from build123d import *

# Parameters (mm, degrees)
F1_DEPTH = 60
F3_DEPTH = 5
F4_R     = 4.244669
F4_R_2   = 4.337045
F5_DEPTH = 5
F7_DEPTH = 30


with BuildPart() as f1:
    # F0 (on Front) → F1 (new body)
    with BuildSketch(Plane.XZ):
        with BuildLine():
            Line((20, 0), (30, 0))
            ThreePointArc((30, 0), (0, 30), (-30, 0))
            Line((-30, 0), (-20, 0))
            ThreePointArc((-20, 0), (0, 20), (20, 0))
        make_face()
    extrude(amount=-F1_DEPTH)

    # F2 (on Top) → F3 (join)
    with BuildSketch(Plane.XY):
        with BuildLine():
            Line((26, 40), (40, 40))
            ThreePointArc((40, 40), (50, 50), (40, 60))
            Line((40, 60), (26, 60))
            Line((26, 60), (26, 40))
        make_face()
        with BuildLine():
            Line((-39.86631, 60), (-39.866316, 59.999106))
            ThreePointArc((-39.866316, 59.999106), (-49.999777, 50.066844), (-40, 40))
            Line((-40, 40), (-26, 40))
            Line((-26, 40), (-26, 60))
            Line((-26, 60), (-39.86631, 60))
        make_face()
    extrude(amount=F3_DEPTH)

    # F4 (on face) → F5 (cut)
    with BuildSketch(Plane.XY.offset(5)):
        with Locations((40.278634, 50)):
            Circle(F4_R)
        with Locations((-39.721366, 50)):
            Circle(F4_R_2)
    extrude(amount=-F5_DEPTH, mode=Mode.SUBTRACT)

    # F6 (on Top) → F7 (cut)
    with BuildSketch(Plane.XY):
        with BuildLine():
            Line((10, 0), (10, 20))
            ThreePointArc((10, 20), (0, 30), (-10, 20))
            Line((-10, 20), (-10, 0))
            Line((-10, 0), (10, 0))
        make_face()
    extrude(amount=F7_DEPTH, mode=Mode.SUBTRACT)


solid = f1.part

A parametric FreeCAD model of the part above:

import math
import FreeCAD as App
import Part
import Sketcher

V = App.Vector
Q = App.Units.Quantity

doc = App.newDocument("Part")
params = doc.addObject("Spreadsheet::Sheet", "Params")
for row, (alias, value) in enumerate([
    ("sketch1_radius", "30 mm"),
    ("sketch1_radius2", "20 mm"),
    ("pad1_length", "60 mm"),
    ("sketch2_radius", "10 mm"),
    ("sketch2_width", "14 mm"),
    ("pad2_length", "5 mm"),
    ("pocket1_length", "5 mm"),
    ("sketch4_radius", "10 mm"),
    ("pocket2_length", "30 mm"),
], start=1):
    params.set(f"A{row}", alias)
    params.set(f"B{row}", "=" + value)
    params.setAlias(f"B{row}", alias)

body = doc.addObject("PartDesign::Body", "Body")

sketch1 = body.newObject("Sketcher::SketchObject", "Sketch")
sketch1.AttachmentSupport = (doc.getObject("XZ_Plane"), [""])
sketch1.MapMode = "FlatFace"
sketch1.addGeometry([
    Part.LineSegment(V(20, 0, 0), V(30, 0, 0)),
    Part.ArcOfCircle(Part.Circle(V(0, 0, 0), V(0, 0, 1), 30), math.radians(0), math.radians(180)),
    Part.LineSegment(V(-30, 0, 0), V(-20, 0, 0)),
    Part.ArcOfCircle(Part.Circle(V(0, 0, 0), V(0, 0, 1), 20), math.radians(0), math.radians(180)),
], False)
sketch1.addConstraint([
    Sketcher.Constraint("Coincident", 0, 2, 1, 1),
    Sketcher.Constraint("Coincident", 1, 2, 2, 1),
    Sketcher.Constraint("Coincident", 2, 2, 3, 2),
    Sketcher.Constraint("Coincident", 3, 1, 0, 1),
    Sketcher.Constraint("Horizontal", 0),
    Sketcher.Constraint("Horizontal", 2),
    Sketcher.Constraint("Coincident", 1, 3, -1, 1),
    Sketcher.Constraint("Coincident", 3, 3, -1, 1),
    Sketcher.Constraint("PointOnObject", 0, 2, -1),
    Sketcher.Constraint("PointOnObject", 1, 2, -1),
    Sketcher.Constraint("Radius", 1, Q("30 mm")),
    Sketcher.Constraint("Radius", 3, Q("20 mm")),
])
sketch1.setExpression("Constraints[10]", "Params.sketch1_radius")
sketch1.setExpression("Constraints[11]", "Params.sketch1_radius2")
pad1 = body.newObject("PartDesign::Pad", "Pad")
pad1.Profile = sketch1
pad1.setExpression("Length", "Params.pad1_length")
pad1.Reversed = True

sketch2 = body.newObject("Sketcher::SketchObject", "Sketch001")
sketch2.AttachmentSupport = (doc.getObject("XY_Plane"), [""])
sketch2.MapMode = "FlatFace"
sketch2.addGeometry([
    Part.LineSegment(V(26, 40, 0), V(40, 40, 0)),
    Part.ArcOfCircle(Part.Circle(V(40, 50, 0), V(0, 0, 1), 10), math.radians(-90), math.radians(90)),
    Part.LineSegment(V(40, 60, 0), V(26, 60, 0)),
    Part.LineSegment(V(26, 60, 0), V(26, 40, 0)),
    Part.LineSegment(V(-39.86631, 60, 0), V(-39.866316, 59.999106, 0)),
    Part.ArcOfCircle(Part.Circle(V(-40.000001, 50, 0), V(0, 0, 1), 10), math.radians(89.234021), math.radians(270.000003)),
    Part.LineSegment(V(-40, 40, 0), V(-26, 40, 0)),
    Part.LineSegment(V(-26, 40, 0), V(-26, 60, 0)),
    Part.LineSegment(V(-26, 60, 0), V(-39.86631, 60, 0)),
], False)
sketch2.addConstraint([
    Sketcher.Constraint("Tangent", 0, 2, 1, 1),
    Sketcher.Constraint("Tangent", 1, 2, 2, 1),
    Sketcher.Constraint("Coincident", 2, 2, 3, 1),
    Sketcher.Constraint("Coincident", 3, 2, 0, 1),
    Sketcher.Constraint("Coincident", 4, 2, 5, 1),
    Sketcher.Constraint("Tangent", 5, 2, 6, 1),
    Sketcher.Constraint("Coincident", 6, 2, 7, 1),
    Sketcher.Constraint("Coincident", 7, 2, 8, 1),
    Sketcher.Constraint("Coincident", 8, 2, 4, 1),
    Sketcher.Constraint("Horizontal", 0),
    Sketcher.Constraint("Horizontal", 2),
    Sketcher.Constraint("Vertical", 3),
    Sketcher.Constraint("Horizontal", 6),
    Sketcher.Constraint("Vertical", 7),
    Sketcher.Constraint("Horizontal", 8),
    Sketcher.Constraint("Equal", 1, 5),
    Sketcher.Constraint("Symmetric", 1, 3, 5, 3, -2),
    Sketcher.Constraint("Symmetric", 2, 2, 7, 2, -2),
    Sketcher.Constraint("Radius", 1, Q("10 mm")),
    Sketcher.Constraint("DistanceX", 0, 1, 0, 2, Q("14 mm")),
    Sketcher.Constraint("DistanceX", -1, 1, 1, 3, Q("40 mm")),
    Sketcher.Constraint("DistanceY", -1, 1, 1, 3, Q("50 mm")),
    Sketcher.Constraint("DistanceX", 8, 2, 8, 1, Q("13.86631 mm")),
    Sketcher.Constraint("Distance", 4, Q("0.000894 mm")),
])
sketch2.setExpression("Constraints[18]", "Params.sketch2_radius")
sketch2.setExpression("Constraints[19]", "Params.sketch2_width")
pad2 = body.newObject("PartDesign::Pad", "Pad001")
pad2.Profile = sketch2
pad2.setExpression("Length", "Params.pad2_length")

sketch3 = body.newObject("Sketcher::SketchObject", "Sketch002")
sketch3.AttachmentSupport = (doc.getObject("XY_Plane"), [""])
sketch3.MapMode = "FlatFace"
sketch3.AttachmentOffset = App.Placement(V(0, 0, 5), App.Rotation())
sketch3.addGeometry([
    Part.Circle(V(40.278634, 50, 0), V(0, 0, 1), 4.244669),
    Part.Circle(V(-39.721366, 50, 0), V(0, 0, 1), 4.337045),
], False)
sketch3.addConstraint([
    Sketcher.Constraint("Horizontal", 0, 3, 1, 3),
    Sketcher.Constraint("DistanceY", -1, 1, 0, 3, Q("50 mm")),
    Sketcher.Constraint("DistanceX", 1, 3, 0, 3, Q("80 mm")),
    Sketcher.Constraint("Diameter", 1, Q("8.67409 mm")),
    Sketcher.Constraint("Diameter", 0, Q("8.489338 mm")),
    Sketcher.Constraint("DistanceX", -1, 1, 0, 3, Q("40.278634 mm")),
])
pocket1 = body.newObject("PartDesign::Pocket", "Pocket")
pocket1.Profile = sketch3
pocket1.setExpression("Length", "Params.pocket1_length")

sketch4 = body.newObject("Sketcher::SketchObject", "Sketch003")
sketch4.AttachmentSupport = (doc.getObject("XY_Plane"), [""])
sketch4.MapMode = "FlatFace"
sketch4.addGeometry([
    Part.LineSegment(V(10, 0, 0), V(10, 20, 0)),
    Part.ArcOfCircle(Part.Circle(V(0, 20, 0), V(0, 0, 1), 10), math.radians(0), math.radians(180)),
    Part.LineSegment(V(-10, 20, 0), V(-10, 0, 0)),
    Part.LineSegment(V(-10, 0, 0), V(10, 0, 0)),
], False)
sketch4.addConstraint([
    Sketcher.Constraint("Tangent", 0, 2, 1, 1),
    Sketcher.Constraint("Tangent", 1, 2, 2, 1),
    Sketcher.Constraint("Coincident", 2, 2, 3, 1),
    Sketcher.Constraint("Coincident", 3, 2, 0, 1),
    Sketcher.Constraint("Vertical", 0),
    Sketcher.Constraint("Vertical", 2),
    Sketcher.Constraint("Horizontal", 3),
    Sketcher.Constraint("Symmetric", 2, 2, 3, 2, -1, 1),
    Sketcher.Constraint("Equal", 3, 0),
    Sketcher.Constraint("Radius", 1, Q("10 mm")),
])
sketch4.setExpression("Constraints[9]", "Params.sketch4_radius")
pocket2 = body.newObject("PartDesign::Pocket", "Pocket001")
pocket2.Profile = sketch4
pocket2.setExpression("Length", "Params.pocket2_length")
pocket2.Reversed = True

doc.recompute()
